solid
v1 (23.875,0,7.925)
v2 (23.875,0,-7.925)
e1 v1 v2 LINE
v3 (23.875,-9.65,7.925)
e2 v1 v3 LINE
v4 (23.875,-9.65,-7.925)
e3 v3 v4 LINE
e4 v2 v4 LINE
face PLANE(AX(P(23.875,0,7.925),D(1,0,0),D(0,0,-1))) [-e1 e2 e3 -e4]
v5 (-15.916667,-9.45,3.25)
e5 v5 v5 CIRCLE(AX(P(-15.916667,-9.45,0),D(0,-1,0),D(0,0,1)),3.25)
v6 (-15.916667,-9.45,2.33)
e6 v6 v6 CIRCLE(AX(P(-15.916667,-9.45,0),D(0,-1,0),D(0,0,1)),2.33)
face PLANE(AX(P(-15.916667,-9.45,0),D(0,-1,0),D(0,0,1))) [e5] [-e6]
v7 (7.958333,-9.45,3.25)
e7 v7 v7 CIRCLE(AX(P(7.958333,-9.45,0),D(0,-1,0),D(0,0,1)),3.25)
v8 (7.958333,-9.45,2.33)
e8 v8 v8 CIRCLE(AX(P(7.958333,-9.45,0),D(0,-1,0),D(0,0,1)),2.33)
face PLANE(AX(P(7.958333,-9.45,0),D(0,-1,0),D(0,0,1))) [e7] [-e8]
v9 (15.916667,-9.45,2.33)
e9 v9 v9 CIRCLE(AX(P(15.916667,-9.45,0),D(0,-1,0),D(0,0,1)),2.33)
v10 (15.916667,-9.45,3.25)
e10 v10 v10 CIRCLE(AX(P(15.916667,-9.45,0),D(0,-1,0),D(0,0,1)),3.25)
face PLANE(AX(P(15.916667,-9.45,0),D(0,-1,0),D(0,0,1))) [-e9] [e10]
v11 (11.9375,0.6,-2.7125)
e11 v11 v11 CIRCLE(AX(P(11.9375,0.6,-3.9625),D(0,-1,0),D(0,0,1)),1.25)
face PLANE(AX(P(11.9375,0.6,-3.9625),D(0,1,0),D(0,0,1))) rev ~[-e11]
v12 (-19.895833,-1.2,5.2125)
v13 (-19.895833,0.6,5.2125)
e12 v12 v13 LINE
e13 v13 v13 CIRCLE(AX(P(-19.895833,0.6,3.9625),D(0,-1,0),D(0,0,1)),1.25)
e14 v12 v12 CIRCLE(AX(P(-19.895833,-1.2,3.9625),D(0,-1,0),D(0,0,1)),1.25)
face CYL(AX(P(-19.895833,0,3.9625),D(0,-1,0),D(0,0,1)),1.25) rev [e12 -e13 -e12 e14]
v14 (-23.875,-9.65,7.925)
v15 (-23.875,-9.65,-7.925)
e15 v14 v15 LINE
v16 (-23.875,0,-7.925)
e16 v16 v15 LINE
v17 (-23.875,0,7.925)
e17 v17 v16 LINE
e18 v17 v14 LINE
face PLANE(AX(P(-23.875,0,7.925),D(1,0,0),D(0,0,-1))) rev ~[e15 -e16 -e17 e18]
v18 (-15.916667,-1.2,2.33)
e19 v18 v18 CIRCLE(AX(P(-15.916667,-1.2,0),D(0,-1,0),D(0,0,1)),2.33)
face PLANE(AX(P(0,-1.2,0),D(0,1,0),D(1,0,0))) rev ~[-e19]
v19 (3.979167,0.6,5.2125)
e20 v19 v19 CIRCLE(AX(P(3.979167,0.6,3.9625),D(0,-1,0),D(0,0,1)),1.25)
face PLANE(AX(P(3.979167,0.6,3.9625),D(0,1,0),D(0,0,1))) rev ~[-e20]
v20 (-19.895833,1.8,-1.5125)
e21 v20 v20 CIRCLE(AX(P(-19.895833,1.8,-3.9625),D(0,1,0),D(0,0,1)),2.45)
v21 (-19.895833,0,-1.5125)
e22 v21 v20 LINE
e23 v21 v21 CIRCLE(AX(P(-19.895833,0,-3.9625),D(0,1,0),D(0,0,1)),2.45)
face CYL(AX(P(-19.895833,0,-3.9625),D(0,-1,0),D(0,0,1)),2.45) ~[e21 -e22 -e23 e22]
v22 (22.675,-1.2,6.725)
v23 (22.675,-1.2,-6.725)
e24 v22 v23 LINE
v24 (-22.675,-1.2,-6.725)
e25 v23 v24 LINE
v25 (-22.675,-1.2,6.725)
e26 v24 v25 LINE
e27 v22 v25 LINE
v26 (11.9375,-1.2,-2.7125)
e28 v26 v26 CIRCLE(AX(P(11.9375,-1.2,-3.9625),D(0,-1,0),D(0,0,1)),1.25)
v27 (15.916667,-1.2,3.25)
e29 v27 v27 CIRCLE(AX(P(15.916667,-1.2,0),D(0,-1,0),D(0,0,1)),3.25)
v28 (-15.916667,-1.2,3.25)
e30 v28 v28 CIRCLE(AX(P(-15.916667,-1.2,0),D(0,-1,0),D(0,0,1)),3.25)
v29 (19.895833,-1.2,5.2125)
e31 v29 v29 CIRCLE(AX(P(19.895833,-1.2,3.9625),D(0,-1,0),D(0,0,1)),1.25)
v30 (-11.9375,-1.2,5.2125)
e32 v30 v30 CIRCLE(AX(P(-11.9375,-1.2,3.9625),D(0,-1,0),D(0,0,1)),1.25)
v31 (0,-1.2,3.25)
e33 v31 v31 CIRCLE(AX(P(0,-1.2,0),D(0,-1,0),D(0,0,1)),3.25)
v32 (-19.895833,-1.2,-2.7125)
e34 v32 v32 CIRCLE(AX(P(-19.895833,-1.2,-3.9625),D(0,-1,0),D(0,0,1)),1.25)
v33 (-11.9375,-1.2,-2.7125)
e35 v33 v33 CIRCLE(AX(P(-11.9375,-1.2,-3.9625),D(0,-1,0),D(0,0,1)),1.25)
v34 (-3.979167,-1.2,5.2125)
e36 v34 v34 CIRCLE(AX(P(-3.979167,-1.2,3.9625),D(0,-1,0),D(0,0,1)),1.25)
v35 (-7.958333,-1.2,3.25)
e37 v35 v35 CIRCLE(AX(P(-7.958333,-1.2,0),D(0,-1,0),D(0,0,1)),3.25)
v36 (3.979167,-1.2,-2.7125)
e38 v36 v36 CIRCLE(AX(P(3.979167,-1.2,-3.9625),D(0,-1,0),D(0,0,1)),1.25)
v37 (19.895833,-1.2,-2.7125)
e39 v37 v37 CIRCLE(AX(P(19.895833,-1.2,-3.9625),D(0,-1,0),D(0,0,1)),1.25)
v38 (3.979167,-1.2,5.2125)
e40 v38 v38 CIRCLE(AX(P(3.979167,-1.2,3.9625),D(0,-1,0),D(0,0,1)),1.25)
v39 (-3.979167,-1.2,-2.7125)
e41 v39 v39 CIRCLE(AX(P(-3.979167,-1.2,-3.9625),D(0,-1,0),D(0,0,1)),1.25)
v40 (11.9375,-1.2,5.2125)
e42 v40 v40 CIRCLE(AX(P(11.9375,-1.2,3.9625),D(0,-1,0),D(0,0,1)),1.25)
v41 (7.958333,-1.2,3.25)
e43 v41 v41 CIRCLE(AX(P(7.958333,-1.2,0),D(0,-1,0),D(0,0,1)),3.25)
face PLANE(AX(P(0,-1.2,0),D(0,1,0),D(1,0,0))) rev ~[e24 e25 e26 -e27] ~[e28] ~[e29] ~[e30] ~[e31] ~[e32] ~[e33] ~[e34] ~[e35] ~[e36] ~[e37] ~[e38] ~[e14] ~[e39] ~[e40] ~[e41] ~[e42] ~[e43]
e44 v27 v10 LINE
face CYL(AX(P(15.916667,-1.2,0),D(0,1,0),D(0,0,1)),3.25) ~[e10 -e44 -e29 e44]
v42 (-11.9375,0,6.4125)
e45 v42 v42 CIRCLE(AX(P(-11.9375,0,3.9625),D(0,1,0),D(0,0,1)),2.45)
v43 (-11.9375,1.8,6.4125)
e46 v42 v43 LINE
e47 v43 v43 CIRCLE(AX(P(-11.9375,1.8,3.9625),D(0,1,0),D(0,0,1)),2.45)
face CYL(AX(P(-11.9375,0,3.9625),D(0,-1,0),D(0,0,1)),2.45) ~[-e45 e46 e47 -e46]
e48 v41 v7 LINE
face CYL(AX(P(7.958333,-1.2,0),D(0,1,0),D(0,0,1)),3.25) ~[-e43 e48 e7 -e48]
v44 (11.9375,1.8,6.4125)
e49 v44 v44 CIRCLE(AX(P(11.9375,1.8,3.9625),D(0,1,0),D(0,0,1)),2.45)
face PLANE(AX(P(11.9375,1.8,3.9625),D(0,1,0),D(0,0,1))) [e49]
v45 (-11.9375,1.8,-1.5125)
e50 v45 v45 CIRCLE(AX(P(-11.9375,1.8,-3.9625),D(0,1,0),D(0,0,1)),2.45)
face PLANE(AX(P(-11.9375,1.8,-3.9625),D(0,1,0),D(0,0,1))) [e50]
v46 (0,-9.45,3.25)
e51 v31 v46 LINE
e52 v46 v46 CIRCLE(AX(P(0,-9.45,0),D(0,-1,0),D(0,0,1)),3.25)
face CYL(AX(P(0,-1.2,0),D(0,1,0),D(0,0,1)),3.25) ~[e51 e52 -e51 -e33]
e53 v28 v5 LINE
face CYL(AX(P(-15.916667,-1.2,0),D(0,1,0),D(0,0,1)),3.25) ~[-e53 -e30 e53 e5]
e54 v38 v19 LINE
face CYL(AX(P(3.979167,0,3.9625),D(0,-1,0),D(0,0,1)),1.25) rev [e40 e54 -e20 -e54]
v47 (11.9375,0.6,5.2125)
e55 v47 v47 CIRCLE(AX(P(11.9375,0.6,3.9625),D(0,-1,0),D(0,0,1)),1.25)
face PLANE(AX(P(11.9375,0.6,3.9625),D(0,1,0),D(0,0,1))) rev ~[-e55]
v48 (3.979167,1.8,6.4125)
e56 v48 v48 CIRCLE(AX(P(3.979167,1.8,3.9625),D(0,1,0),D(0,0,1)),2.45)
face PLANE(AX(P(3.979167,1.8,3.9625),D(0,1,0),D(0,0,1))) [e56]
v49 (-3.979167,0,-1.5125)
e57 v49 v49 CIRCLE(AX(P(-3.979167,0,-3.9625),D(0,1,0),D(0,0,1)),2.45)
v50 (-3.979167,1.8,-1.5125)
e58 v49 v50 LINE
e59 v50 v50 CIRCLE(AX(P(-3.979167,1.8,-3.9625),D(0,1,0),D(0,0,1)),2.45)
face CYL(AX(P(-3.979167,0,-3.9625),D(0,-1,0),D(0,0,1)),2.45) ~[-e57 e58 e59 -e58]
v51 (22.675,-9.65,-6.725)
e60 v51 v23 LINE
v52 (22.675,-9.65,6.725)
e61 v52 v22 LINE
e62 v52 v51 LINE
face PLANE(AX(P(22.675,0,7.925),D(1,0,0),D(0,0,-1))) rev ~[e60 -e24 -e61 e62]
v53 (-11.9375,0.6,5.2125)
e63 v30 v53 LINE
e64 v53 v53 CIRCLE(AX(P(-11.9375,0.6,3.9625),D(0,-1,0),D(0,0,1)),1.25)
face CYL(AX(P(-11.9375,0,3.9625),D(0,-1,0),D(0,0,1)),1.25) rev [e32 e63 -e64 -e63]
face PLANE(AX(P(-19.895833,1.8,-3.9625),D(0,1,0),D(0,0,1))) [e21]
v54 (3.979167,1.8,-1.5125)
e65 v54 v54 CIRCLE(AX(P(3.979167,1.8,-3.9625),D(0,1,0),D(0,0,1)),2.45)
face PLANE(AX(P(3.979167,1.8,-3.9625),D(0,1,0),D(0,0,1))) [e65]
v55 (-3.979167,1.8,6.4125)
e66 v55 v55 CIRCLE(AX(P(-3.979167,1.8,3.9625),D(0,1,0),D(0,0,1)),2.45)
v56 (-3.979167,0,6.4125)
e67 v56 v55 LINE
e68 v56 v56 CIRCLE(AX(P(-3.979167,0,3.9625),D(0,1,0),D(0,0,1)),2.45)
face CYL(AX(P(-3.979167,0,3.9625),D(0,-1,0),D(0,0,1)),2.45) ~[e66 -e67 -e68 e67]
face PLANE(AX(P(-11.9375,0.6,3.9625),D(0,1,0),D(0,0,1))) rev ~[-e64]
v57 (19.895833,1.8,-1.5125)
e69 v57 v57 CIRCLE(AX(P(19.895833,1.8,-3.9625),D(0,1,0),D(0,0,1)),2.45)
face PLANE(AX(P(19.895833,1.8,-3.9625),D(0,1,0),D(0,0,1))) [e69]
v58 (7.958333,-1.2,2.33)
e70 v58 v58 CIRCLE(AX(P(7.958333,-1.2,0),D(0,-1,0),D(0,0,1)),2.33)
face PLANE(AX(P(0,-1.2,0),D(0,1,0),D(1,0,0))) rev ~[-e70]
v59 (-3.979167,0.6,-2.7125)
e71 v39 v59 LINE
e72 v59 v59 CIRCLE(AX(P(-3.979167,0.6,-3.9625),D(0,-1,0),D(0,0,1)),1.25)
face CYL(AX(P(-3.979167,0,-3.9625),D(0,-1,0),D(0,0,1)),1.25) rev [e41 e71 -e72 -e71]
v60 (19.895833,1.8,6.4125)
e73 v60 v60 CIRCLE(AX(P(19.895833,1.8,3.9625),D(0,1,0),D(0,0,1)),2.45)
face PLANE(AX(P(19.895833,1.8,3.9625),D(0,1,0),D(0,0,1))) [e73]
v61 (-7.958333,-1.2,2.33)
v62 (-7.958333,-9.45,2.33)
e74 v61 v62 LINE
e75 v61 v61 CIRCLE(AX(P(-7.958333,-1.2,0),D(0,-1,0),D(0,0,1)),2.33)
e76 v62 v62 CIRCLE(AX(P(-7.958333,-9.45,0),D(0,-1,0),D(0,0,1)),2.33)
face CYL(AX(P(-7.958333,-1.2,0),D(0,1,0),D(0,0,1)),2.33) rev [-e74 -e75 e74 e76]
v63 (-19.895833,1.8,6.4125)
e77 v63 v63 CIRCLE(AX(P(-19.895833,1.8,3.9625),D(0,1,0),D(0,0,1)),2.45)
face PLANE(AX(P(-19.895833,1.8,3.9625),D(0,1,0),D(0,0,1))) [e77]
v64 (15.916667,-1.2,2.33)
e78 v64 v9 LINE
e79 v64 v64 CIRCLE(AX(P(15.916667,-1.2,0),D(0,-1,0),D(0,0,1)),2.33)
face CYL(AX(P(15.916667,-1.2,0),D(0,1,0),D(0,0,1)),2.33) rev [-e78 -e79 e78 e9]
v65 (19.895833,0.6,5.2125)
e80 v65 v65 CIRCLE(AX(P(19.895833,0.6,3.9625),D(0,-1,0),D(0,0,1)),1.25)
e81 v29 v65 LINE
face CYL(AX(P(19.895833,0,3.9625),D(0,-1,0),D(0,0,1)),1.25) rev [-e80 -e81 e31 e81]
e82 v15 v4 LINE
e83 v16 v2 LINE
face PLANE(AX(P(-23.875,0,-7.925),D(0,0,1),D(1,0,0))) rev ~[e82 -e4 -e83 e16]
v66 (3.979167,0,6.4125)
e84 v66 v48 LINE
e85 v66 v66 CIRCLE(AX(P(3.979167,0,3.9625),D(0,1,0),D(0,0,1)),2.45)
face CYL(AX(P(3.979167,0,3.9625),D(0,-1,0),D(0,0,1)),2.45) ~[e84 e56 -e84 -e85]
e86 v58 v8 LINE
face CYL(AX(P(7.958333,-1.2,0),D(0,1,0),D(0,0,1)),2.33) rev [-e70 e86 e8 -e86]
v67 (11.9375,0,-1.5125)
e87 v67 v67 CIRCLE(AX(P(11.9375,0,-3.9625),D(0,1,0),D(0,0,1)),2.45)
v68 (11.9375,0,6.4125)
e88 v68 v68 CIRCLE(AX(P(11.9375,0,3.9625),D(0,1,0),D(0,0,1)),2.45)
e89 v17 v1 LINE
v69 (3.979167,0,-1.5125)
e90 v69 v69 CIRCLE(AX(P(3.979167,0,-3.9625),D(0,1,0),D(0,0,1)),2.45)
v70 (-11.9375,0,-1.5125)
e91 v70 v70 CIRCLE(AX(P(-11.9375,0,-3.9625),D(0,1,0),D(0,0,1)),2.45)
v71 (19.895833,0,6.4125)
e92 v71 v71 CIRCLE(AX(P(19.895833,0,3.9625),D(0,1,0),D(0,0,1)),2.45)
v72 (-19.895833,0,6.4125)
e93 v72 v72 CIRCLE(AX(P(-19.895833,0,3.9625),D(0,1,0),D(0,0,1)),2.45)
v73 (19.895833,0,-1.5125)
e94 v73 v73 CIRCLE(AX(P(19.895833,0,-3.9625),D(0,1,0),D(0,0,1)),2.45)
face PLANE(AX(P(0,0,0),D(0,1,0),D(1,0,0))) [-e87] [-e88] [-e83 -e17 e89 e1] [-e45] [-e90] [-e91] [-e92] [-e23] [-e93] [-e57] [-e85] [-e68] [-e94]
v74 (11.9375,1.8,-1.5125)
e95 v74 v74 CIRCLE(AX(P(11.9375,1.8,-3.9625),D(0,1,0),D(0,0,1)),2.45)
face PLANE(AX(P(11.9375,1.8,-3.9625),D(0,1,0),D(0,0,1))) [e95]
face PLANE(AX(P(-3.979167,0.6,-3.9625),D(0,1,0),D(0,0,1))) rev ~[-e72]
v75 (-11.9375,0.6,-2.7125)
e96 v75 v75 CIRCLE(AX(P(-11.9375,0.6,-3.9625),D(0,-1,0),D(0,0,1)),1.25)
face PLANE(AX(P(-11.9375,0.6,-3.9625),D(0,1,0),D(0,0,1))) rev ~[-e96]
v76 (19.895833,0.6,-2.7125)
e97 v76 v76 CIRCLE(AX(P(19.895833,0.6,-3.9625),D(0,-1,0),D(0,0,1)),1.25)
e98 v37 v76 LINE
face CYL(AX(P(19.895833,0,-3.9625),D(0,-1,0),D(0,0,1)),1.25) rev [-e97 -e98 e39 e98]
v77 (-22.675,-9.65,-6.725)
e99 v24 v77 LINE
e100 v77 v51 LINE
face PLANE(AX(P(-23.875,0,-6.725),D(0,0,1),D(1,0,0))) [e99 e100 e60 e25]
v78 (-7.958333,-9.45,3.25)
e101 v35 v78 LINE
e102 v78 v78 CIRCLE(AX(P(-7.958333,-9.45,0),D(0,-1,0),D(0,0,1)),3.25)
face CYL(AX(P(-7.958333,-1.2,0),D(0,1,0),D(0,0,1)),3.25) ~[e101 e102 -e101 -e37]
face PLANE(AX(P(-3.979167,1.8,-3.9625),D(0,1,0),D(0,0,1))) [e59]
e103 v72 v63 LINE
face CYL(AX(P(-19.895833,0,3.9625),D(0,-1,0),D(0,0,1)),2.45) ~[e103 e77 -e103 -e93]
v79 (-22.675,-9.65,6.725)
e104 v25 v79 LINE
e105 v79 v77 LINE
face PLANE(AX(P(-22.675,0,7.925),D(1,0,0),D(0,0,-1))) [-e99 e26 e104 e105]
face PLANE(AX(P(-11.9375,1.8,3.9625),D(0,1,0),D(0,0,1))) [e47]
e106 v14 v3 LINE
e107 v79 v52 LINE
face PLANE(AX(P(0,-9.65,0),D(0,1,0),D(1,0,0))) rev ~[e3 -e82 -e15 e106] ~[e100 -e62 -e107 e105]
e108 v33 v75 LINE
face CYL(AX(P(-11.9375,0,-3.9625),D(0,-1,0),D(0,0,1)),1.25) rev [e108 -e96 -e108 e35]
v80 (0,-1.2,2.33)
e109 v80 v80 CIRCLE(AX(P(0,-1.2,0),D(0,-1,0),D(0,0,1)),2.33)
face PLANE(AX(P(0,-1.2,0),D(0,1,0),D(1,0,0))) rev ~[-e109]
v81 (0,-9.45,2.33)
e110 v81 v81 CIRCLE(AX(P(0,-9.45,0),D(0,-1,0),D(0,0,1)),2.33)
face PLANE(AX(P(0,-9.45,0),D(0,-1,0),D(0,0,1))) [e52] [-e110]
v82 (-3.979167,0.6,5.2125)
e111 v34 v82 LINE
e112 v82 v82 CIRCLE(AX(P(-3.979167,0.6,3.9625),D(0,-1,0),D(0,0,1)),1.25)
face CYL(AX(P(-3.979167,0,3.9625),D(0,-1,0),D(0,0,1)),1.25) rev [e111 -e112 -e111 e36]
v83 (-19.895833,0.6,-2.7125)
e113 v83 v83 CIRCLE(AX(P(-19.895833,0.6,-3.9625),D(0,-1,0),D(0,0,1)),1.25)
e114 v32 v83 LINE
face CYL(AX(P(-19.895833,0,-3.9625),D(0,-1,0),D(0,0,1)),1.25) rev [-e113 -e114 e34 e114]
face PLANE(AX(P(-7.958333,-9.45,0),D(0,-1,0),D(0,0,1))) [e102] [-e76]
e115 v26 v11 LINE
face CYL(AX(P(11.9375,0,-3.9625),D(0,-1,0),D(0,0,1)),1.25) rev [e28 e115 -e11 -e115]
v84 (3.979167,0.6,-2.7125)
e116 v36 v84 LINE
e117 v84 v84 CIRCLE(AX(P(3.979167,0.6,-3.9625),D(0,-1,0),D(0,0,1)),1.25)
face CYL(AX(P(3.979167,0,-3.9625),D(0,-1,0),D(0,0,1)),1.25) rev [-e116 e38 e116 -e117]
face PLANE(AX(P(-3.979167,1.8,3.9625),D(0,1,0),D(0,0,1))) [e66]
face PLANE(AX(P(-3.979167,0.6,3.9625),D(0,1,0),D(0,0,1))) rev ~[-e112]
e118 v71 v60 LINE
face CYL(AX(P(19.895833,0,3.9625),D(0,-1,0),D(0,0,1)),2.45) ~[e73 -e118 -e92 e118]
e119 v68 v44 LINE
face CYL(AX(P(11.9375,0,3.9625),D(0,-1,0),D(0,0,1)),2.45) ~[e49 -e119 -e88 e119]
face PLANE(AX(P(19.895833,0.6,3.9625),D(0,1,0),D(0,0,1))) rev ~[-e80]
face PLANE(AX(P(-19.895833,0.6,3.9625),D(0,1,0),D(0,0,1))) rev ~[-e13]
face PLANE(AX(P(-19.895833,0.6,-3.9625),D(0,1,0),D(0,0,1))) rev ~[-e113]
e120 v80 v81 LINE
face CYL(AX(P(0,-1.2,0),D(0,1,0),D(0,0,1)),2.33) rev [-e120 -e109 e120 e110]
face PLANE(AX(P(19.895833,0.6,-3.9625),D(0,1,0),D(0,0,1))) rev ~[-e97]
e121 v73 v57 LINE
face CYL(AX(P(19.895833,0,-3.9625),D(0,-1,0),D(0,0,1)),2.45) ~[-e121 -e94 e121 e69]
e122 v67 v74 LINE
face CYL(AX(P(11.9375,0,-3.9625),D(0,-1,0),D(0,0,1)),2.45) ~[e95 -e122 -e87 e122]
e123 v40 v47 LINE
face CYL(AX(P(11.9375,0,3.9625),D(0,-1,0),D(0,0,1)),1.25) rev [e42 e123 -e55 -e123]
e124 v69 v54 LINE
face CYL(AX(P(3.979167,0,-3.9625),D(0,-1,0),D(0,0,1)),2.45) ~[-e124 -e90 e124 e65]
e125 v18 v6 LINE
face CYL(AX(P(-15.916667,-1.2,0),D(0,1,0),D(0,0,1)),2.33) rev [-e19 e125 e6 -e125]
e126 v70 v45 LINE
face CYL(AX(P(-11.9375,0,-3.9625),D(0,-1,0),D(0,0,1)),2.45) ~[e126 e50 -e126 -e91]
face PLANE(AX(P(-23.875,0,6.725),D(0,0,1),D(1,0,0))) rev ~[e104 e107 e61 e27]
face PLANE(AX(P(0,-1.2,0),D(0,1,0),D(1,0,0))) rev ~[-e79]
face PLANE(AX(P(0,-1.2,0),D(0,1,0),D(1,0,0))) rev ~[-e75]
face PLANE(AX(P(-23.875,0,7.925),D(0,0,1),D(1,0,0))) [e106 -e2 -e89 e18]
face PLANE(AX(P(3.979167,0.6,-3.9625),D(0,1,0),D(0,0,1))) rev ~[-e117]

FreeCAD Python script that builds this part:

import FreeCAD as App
import Part
import Sketcher
from FreeCAD import Vector


def faces_at(feature, points):
    """Names of the faces that lie closest to the given points."""
    faces = feature.Shape.Faces
    near = lambda p: min(range(len(faces)), key=lambda i: faces[i].distToShape(Part.Vertex(*p))[0])
    return sorted({f"Face{near(p) + 1}" for p in points})

doc = App.newDocument("Part")
body = doc.addObject("PartDesign::Body", "Body")

# Sketch on XZ plane
sketch1 = body.newObject("Sketcher::SketchObject", "Sketch")
sketch1.AttachmentSupport = (doc.getObject("XZ_Plane"), [""])
sketch1.MapMode = "FlatFace"
sketch1.addGeometry([
    Part.LineSegment(Vector(-24, -8, 0), Vector(-24, 8, 0)),
    Part.LineSegment(Vector(-24, 8, 0), Vector(24, 8, 0)),
    Part.LineSegment(Vector(24, 8, 0), Vector(24, -8, 0)),
    Part.LineSegment(Vector(24, -8, 0), Vector(-24, -8, 0)),
], False)
sketch1.addConstraint([
    Sketcher.Constraint("Coincident", 0, 2, 1, 1),
    Sketcher.Constraint("Coincident", 1, 2, 2, 1),
    Sketcher.Constraint("Coincident", 2, 2, 3, 1),
    Sketcher.Constraint("Coincident", 3, 2, 0, 1),
    Sketcher.Constraint("Vertical", 0),
    Sketcher.Constraint("Horizontal", 1),
    Sketcher.Constraint("Vertical", 2),
    Sketcher.Constraint("Horizontal", 3),
    Sketcher.Constraint("Symmetric", 0, 2, 2, 2, -1, 1),
    Sketcher.Constraint("DistanceX", 1, 1, 1, 2, 47.75),
    Sketcher.Constraint("DistanceY", 0, 1, 0, 2, 15.85),
])
pad1 = body.newObject("PartDesign::Pad", "Pad")
pad1.Profile = sketch1
pad1.Length = 9.65

# Sketch on XZ plane
sketch2 = body.newObject("Sketcher::SketchObject", "Sketch001")
sketch2.AttachmentSupport = (doc.getObject("XZ_Plane"), [""])
sketch2.MapMode = "FlatFace"
sketch2.addGeometry([
    Part.Circle(Vector(-19.9, -4, 0), Vector(0, 0, 1), 2.5),  # 0
    Part.Circle(Vector(-11.9, -4, 0), Vector(0, 0, 1), 2.5),  # 1
    Part.Circle(Vector(-4, -4, 0), Vector(0, 0, 1), 2.5),  # 2
    Part.Circle(Vector(4, -4, 0), Vector(0, 0, 1), 2.5),  # 3
    Part.Circle(Vector(11.9, -4, 0), Vector(0, 0, 1), 2.5),  # 4
    Part.Circle(Vector(19.9, -4, 0), Vector(0, 0, 1), 2.5),  # 5
    Part.Circle(Vector(-11.9, 4, 0), Vector(0, 0, 1), 2.5),  # 6
    Part.Circle(Vector(-4, 4, 0), Vector(0, 0, 1), 2.5),  # 7
    Part.Circle(Vector(4, 4, 0), Vector(0, 0, 1), 2.5),  # 8
    Part.Circle(Vector(11.9, 4, 0), Vector(0, 0, 1), 2.5),  # 9
    Part.Circle(Vector(19.9, 4, 0), Vector(0, 0, 1), 2.5),  # 10
    Part.Circle(Vector(-19.9, 4, 0), Vector(0, 0, 1), 2.5),  # 11
], False)
sketch2.addConstraint([
    Sketcher.Constraint("Equal", 0, 1),
    Sketcher.Constraint("Equal", 1, 2),
    Sketcher.Constraint("Equal", 2, 3),
    Sketcher.Constraint("Equal", 3, 4),
    Sketcher.Constraint("Equal", 4, 5),
    Sketcher.Constraint("Equal", 5, 6),
    Sketcher.Constraint("Equal", 6, 7),
    Sketcher.Constraint("Equal", 7, 8),
    Sketcher.Constraint("Equal", 8, 9),
    Sketcher.Constraint("Equal", 9, 10),
    Sketcher.Constraint("Equal", 10, 11),
    Sketcher.Constraint("Symmetric", 4, 3, 6, 3, -1, 1),
    Sketcher.Constraint("Symmetric", 3, 3, 7, 3, -1, 1),
    Sketcher.Constraint("Symmetric", 2, 3, 8, 3, -1, 1),
    Sketcher.Constraint("Symmetric", 1, 3, 9, 3, -1, 1),
    Sketcher.Constraint("Symmetric", 0, 3, 10, 3, -1, 1),
    Sketcher.Constraint("Symmetric", 5, 3, 11, 3, -1, 1),
    Sketcher.Constraint("Symmetric", 2, 3, 3, 3, -2),
    Sketcher.Constraint("Symmetric", 1, 3, 4, 3, -2),
    Sketcher.Constraint("Symmetric", 0, 3, 5, 3, -2),
    Sketcher.Constraint("Horizontal", 0, 3, 1, 3),
    Sketcher.Constraint("Horizontal", 1, 3, 2, 3),
    Sketcher.Constraint("Diameter", 0, 4.9),
    Sketcher.Constraint("DistanceX", 0, 3, 3, 3, 23.875),
    Sketcher.Constraint("DistanceX", 1, 3, 4, 3, 23.875),
    Sketcher.Constraint("DistanceY", 1, 3, 6, 3, 7.925),
    Sketcher.Constraint("DistanceX", 0, 3, -1, 1, 19.895833),
])
pad2 = body.newObject("PartDesign::Pad", "Pad001")
pad2.Profile = sketch2
pad2.Length = 1.8
pad2.Reversed = True
doc.recompute()

thickness = body.newObject("PartDesign::Thickness", "Thickness")
thickness.Base = (pad2, faces_at(pad2, [(0, -9.65, 0)]))
thickness.Value = 1.2
thickness.Reversed = True
thickness.Join = "Intersection"

# Sketch on XZ plane
sketch3 = body.newObject("Sketcher::SketchObject", "Sketch002")
sketch3.AttachmentSupport = (doc.getObject("XZ_Plane"), [""])
sketch3.MapMode = "FlatFace"
sketch3.AttachmentOffset = App.Placement(Vector(0, 0, 1.2), App.Rotation())
sketch3.addGeometry([
    Part.Circle(Vector(-15.9, 0, 0), Vector(0, 0, 1), 3.2),  # 0
    Part.Circle(Vector(-15.9, 0, 0), Vector(0, 0, 1), 2.3),  # 1
    Part.Circle(Vector(-8, 0, 0), Vector(0, 0, 1), 3.2),  # 2
    Part.Circle(Vector(-8, 0, 0), Vector(0, 0, 1), 2.3),  # 3
    Part.Circle(Vector(0, 0, 0), Vector(0, 0, 1), 3.2),  # 4
    Part.Circle(Vector(0, 0, 0), Vector(0, 0, 1), 2.3),  # 5
    Part.Circle(Vector(8, 0, 0), Vector(0, 0, 1), 3.2),  # 6
    Part.Circle(Vector(8, 0, 0), Vector(0, 0, 1), 2.3),  # 7
    Part.Circle(Vector(15.9, 0, 0), Vector(0, 0, 1), 3.2),  # 8
    Part.Circle(Vector(15.9, 0, 0), Vector(0, 0, 1), 2.3),  # 9
], False)
sketch3.addConstraint([
    Sketcher.Constraint("Coincident", 4, 3, -1, 1),
    Sketcher.Constraint("Coincident", 5, 3, -1, 1),
    Sketcher.Constraint("Coincident", 1, 3, 0, 3),
    Sketcher.Constraint("Coincident", 3, 3, 2, 3),
    Sketcher.Constraint("Coincident", 7, 3, 6, 3),
    Sketcher.Constraint("Coincident", 9, 3, 8, 3),
    Sketcher.Constraint("Equal", 0, 2),
    Sketcher.Constraint("Equal", 1, 3),
    Sketcher.Constraint("Equal", 2, 4),
    Sketcher.Constraint("Equal", 3, 5),
    Sketcher.Constraint("Equal", 4, 6),
    Sketcher.Constraint("Equal", 5, 7),
    Sketcher.Constraint("Equal", 6, 8),
    Sketcher.Constraint("Equal", 7, 9),
    Sketcher.Constraint("Symmetric", 2, 3, 6, 3, -1, 1),
    Sketcher.Constraint("Symmetric", 0, 3, 8, 3, -1, 1),
    Sketcher.Constraint("PointOnObject", 0, 3, -1),
    Sketcher.Constraint("PointOnObject", 2, 3, -1),
    Sketcher.Constraint("Diameter", 0, 6.5),
    Sketcher.Constraint("Diameter", 1, 4.66),
    Sketcher.Constraint("DistanceX", 0, 3, 6, 3, 23.875),
    Sketcher.Constraint("DistanceX", 0, 3, -1, 1, 15.916667),
])
pad3 = body.newObject("PartDesign::Pad", "Pad002")
pad3.Profile = sketch3
pad3.Length = 8.25

doc.recompute()
